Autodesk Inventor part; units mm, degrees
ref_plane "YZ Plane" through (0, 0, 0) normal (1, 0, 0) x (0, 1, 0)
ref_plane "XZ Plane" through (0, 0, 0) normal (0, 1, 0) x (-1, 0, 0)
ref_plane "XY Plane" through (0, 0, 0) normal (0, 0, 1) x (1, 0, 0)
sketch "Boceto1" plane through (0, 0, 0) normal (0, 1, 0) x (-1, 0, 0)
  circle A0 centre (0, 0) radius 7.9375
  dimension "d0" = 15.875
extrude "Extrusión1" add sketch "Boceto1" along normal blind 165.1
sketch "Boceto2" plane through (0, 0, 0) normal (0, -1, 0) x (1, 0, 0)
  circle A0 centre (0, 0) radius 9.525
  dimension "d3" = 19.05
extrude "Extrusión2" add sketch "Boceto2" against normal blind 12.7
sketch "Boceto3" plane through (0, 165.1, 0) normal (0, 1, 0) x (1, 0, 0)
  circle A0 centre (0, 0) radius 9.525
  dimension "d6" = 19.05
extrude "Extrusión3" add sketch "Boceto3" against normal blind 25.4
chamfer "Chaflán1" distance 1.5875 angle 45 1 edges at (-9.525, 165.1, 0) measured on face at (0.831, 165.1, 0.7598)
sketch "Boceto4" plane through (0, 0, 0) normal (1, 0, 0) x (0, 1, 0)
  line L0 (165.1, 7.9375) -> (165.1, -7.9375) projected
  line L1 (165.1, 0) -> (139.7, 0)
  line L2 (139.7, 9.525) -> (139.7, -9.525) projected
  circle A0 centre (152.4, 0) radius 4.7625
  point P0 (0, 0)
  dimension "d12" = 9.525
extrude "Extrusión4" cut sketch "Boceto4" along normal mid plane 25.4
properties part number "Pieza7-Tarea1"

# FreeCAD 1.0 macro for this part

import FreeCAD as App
import Part
import Sketcher

V = App.Vector
Q = App.Units.Quantity


def edges_at(feature, points):
    """Names of the edges that pass closest to the given points."""
    edges = feature.Shape.Edges
    near = lambda p: min(range(len(edges)), key=lambda i: edges[i].distToShape(Part.Vertex(*p))[0])
    return sorted({f"Edge{near(p) + 1}" for p in points})

doc = App.newDocument("Part")
body = doc.addObject("PartDesign::Body", "Body")

sketch1 = body.newObject("Sketcher::SketchObject", "Sketch")
sketch1.AttachmentSupport = (doc.getObject("XZ_Plane"), [""])
sketch1.MapMode = "FlatFace"
sketch1.addGeometry(Part.Circle(V(0, 0, 0), V(0, 0, 1), 8), False)
sketch1.addConstraint(Sketcher.Constraint("Coincident", 0, 3, -1, 1))
sketch1.addConstraint(Sketcher.Constraint("Diameter", 0, Q("0.625 in")))
pad1 = body.newObject("PartDesign::Pad", "Pad")
pad1.Profile = sketch1
pad1.Length = Q("6.5 in")
pad1.Reversed = True

sketch2 = body.newObject("Sketcher::SketchObject", "Sketch001")
sketch2.AttachmentSupport = (doc.getObject("XZ_Plane"), [""])
sketch2.MapMode = "FlatFace"
sketch2.addGeometry(Part.Circle(V(0, 0, 0), V(0, 0, 1), 10), False)
sketch2.addConstraint(Sketcher.Constraint("Coincident", 0, 3, -1, 1))
sketch2.addConstraint(Sketcher.Constraint("Diameter", 0, Q("0.75 in")))
pad2 = body.newObject("PartDesign::Pad", "Pad001")
pad2.Profile = sketch2
pad2.Length = Q("0.5 in")
pad2.Reversed = True

sketch3 = body.newObject("Sketcher::SketchObject", "Sketch002")
sketch3.AttachmentSupport = (doc.getObject("XZ_Plane"), [""])
sketch3.MapMode = "FlatFace"
sketch3.AttachmentOffset = App.Placement(V(0, 0, -6.5 * 25.4), App.Rotation())
sketch3.addGeometry(Part.Circle(V(0, 0, 0), V(0, 0, 1), 10), False)
sketch3.addConstraint(Sketcher.Constraint("Coincident", 0, 3, -1, 1))
sketch3.addConstraint(Sketcher.Constraint("Diameter", 0, Q("0.75 in")))
pad3 = body.newObject("PartDesign::Pad", "Pad002")
pad3.Profile = sketch3
pad3.Length = Q("1 in")
doc.recompute()

chamfer = body.newObject("PartDesign::Chamfer", "Chamfer")
chamfer.Base = (pad3, edges_at(pad3, [(-9.525, 165.1, 0)]))
chamfer.Size = Q("0.0625 in")

sketch4 = body.newObject("Sketcher::SketchObject", "Sketch003")
sketch4.AttachmentSupport = (doc.getObject("YZ_Plane"), [""])
sketch4.MapMode = "FlatFace"
sketch4.addGeometry(Part.Circle(V(152.4, 0, 0), V(0, 0, 1), 4.8), False)
sketch4.addConstraint(Sketcher.Constraint("PointOnObject", 0, 3, -1))
sketch4.addConstraint(Sketcher.Constraint("Diameter", 0, Q("0.375 in")))
sketch4.addConstraint(Sketcher.Constraint("DistanceX", -1, 1, 0, 3, Q("6 in")))
pocket1 = body.newObject("PartDesign::Pocket", "Pocket")
pocket1.Profile = sketch4
pocket1.Length = Q("1 in")
pocket1.Midplane = True

doc.recompute()
